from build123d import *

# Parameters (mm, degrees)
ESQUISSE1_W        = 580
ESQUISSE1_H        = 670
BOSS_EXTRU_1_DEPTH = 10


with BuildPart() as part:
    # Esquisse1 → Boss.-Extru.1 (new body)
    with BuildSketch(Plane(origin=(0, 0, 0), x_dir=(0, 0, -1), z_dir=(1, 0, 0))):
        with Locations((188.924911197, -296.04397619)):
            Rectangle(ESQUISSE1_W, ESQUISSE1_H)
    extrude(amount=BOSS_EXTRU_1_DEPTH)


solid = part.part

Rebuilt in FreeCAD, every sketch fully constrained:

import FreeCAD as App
import Part
import Sketcher
from FreeCAD import Vector
Q = App.Units.Quantity


def add_polygon(sketch, points):
    """Adds a closed chain of lines whose ends are joined by coincident constraints."""
    first, n = sketch.GeometryCount, len(points)
    for a, b in zip(points, points[1:] + points[:1]):
        sketch.addGeometry(Part.LineSegment(App.Vector(*a, 0), App.Vector(*b, 0)), False)
    for i in range(n):
        sketch.addConstraint(Sketcher.Constraint("Coincident", first + i, 2, first + (i + 1) % n, 1))

doc = App.newDocument("Part")
body = doc.addObject("PartDesign::Body", "Body")

sketch1 = doc.addObject("Sketcher::SketchObject", "Sketch")
body.addObject(sketch1)
sketch1.AttachmentSupport = (doc.YZ_Plane, [""])
sketch1.MapMode = "FlatFace"
add_polygon(sketch1, [(39, 101), (-631, 101), (-631, -479), (39, -479)])
sketch1.addConstraint([
    Sketcher.Constraint("Horizontal", 0),
    Sketcher.Constraint("Vertical", 1),
    Sketcher.Constraint("Horizontal", 2),
    Sketcher.Constraint("Vertical", 3),
    Sketcher.Constraint("DistanceX", 0, 2, 0, 1, Q("670 mm")),
    Sketcher.Constraint("DistanceY", 1, 2, 1, 1, Q("580 mm")),
    Sketcher.Constraint("DistanceY", -1, 1, 0, 2, Q("101.075089 mm")),
    Sketcher.Constraint("DistanceX", 0, 2, -1, 1, Q("631.043976 mm")),
])
pad1 = doc.addObject("PartDesign::Pad", "Pad")
body.addObject(pad1)
pad1.Profile = sketch1
pad1.Length = 10

doc.recompute()
